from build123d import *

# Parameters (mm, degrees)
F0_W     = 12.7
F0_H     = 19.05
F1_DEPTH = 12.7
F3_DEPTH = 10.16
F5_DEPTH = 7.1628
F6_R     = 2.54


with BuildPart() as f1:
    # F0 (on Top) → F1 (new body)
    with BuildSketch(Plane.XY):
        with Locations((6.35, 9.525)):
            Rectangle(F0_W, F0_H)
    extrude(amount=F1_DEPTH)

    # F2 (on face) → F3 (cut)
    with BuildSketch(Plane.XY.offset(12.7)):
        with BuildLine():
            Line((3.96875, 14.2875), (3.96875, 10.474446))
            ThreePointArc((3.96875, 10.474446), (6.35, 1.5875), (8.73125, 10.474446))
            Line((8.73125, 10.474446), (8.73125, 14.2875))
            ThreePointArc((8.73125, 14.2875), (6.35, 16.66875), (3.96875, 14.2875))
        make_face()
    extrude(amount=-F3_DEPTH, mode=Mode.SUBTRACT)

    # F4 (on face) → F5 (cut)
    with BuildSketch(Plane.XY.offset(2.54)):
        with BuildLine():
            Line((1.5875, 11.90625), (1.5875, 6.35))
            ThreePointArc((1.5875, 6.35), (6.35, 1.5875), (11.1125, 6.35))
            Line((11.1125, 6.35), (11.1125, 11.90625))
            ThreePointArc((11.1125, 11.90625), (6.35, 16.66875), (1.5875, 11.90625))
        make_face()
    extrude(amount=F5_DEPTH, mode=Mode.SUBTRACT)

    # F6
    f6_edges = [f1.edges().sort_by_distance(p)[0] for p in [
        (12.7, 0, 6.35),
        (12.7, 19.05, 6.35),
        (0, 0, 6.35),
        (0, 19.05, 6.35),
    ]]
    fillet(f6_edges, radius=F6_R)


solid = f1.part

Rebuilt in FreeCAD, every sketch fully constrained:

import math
import FreeCAD as App
import Part
import Sketcher
from FreeCAD import Vector
Q = App.Units.Quantity


def edges_at(feature, points):
    """Names of the edges that pass closest to the given points."""
    edges = feature.Shape.Edges
    near = lambda p: min(range(len(edges)), key=lambda i: edges[i].distToShape(Part.Vertex(*p))[0])
    return sorted({f"Edge{near(p) + 1}" for p in points})

doc = App.newDocument("Part")
body = doc.addObject("PartDesign::Body", "Body")

sketch1 = body.newObject("Sketcher::SketchObject", "Sketch")
sketch1.AttachmentSupport = (doc.getObject("XY_Plane"), [""])
sketch1.MapMode = "FlatFace"
sketch1.addGeometry([
    Part.LineSegment(Vector(0, 19, 0), Vector(0, 0, 0)),
    Part.LineSegment(Vector(0, 0, 0), Vector(13, 0, 0)),
    Part.LineSegment(Vector(13, 0, 0), Vector(13, 19, 0)),
    Part.LineSegment(Vector(13, 19, 0), Vector(0, 19, 0)),
], False)
sketch1.addConstraint([
    Sketcher.Constraint("Coincident", 0, 2, 1, 1),
    Sketcher.Constraint("Coincident", 1, 2, 2, 1),
    Sketcher.Constraint("Coincident", 2, 2, 3, 1),
    Sketcher.Constraint("Coincident", 3, 2, 0, 1),
    Sketcher.Constraint("Vertical", 0),
    Sketcher.Constraint("Horizontal", 1),
    Sketcher.Constraint("Vertical", 2),
    Sketcher.Constraint("Horizontal", 3),
    Sketcher.Constraint("Coincident", 0, 2, -1, 1),
    Sketcher.Constraint("DistanceX", 1, 1, 1, 2, Q("0.5 in")),
    Sketcher.Constraint("DistanceY", 0, 2, 0, 1, Q("0.75 in")),
])
pad1 = body.newObject("PartDesign::Pad", "Pad")
pad1.Profile = sketch1
pad1.Length = Q("0.5 in")

sketch2 = body.newObject("Sketcher::SketchObject", "Sketch001")
sketch2.AttachmentSupport = (doc.getObject("XY_Plane"), [""])
sketch2.MapMode = "FlatFace"
sketch2.AttachmentOffset = App.Placement(Vector(0, 0, 0.5 * 25.4), App.Rotation())
sketch2.addGeometry([
    Part.LineSegment(Vector(4, 14.3, 0), Vector(4, 10.5, 0)),
    Part.ArcOfCircle(Part.Circle(Vector(6.3, 6.4, 0), Vector(0, 0, 1), 4.8), math.radians(120), math.radians(420)),
    Part.LineSegment(Vector(8.7, 10.5, 0), Vector(8.7, 14.3, 0)),
    Part.ArcOfCircle(Part.Circle(Vector(6.3, 14.3, 0), Vector(0, 0, 1), 2.4), math.radians(0), math.radians(180)),
], False)
sketch2.addConstraint([
    Sketcher.Constraint("Coincident", 0, 2, 1, 1),
    Sketcher.Constraint("Coincident", 1, 2, 2, 1),
    Sketcher.Constraint("Tangent", 2, 2, 3, 1),
    Sketcher.Constraint("Tangent", 3, 2, 0, 1),
    Sketcher.Constraint("Vertical", 0),
    Sketcher.Constraint("Vertical", 2),
    Sketcher.Constraint("Horizontal", 0, 2, 1, 2),
    Sketcher.Constraint("Radius", 1, Q("0.1875 in")),
    Sketcher.Constraint("Radius", 3, Q("0.09375 in")),
    Sketcher.Constraint("DistanceX", -1, 1, 1, 3, Q("0.25 in")),
    Sketcher.Constraint("DistanceY", -1, 1, 1, 3, Q("0.25 in")),
    Sketcher.Constraint("DistanceY", -1, 1, 3, 3, Q("0.5625 in")),
])
pocket1 = body.newObject("PartDesign::Pocket", "Pocket")
pocket1.Profile = sketch2
pocket1.Length = Q("0.4 in")

sketch3 = body.newObject("Sketcher::SketchObject", "Sketch002")
sketch3.AttachmentSupport = (doc.getObject("XY_Plane"), [""])
sketch3.MapMode = "FlatFace"
sketch3.AttachmentOffset = App.Placement(Vector(0, 0, 0.1 * 25.4), App.Rotation())
sketch3.addGeometry([
    Part.LineSegment(Vector(1.6, 11.9, 0), Vector(1.6, 6.3, 0)),
    Part.ArcOfCircle(Part.Circle(Vector(6.3, 6.3, 0), Vector(0, 0, 1), 4.8), math.radians(180), math.radians(360)),
    Part.LineSegment(Vector(11.1, 6.3, 0), Vector(11.1, 11.9, 0)),
    Part.ArcOfCircle(Part.Circle(Vector(6.3, 11.9, 0), Vector(0, 0, 1), 4.8), math.radians(0), math.radians(180)),
], False)
sketch3.addConstraint([
    Sketcher.Constraint("Tangent", 0, 2, 1, 1),
    Sketcher.Constraint("Tangent", 1, 2, 2, 1),
    Sketcher.Constraint("Tangent", 2, 2, 3, 1),
    Sketcher.Constraint("Tangent", 3, 2, 0, 1),
    Sketcher.Constraint("Vertical", 0),
    Sketcher.Constraint("Vertical", 2),
    Sketcher.Constraint("Radius", 1, Q("0.1875 in")),
    Sketcher.Constraint("DistanceY", 0, 2, 0, 1, Q("0.21875 in")),
    Sketcher.Constraint("DistanceX", -1, 1, 1, 3, Q("0.25 in")),
    Sketcher.Constraint("DistanceY", -1, 1, 1, 3, Q("0.25 in")),
])
pocket2 = body.newObject("PartDesign::Pocket", "Pocket001")
pocket2.Profile = sketch3
pocket2.Length = Q("0.282 in")
pocket2.Reversed = True
doc.recompute()

fillet = body.newObject("PartDesign::Fillet", "Fillet")
fillet.Base = (pocket2, edges_at(pocket2, [
    (12.7, 0, 6.35),
    (12.7, 19.05, 6.35),
    (0, 0, 6.35),
    (0, 19.05, 6.35),
]))
fillet.Radius = Q("0.1 in")

doc.recompute()
